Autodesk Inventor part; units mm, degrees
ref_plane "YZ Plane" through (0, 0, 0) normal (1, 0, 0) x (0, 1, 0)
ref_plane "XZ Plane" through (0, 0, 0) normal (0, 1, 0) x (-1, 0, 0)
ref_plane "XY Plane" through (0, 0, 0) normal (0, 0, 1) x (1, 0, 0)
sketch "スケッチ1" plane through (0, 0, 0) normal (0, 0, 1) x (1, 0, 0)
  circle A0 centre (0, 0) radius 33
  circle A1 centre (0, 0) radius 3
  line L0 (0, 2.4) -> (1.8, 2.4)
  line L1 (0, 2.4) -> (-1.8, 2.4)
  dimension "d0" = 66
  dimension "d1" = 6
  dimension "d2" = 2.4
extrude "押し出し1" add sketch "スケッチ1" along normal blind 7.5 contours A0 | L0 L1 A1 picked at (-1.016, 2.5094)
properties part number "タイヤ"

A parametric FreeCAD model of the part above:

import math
import FreeCAD as App
import Part
import Sketcher

doc = App.newDocument("Part")
body = doc.addObject("PartDesign::Body", "Body")

sketch1 = doc.addObject("Sketcher::SketchObject", "Sketch")
body.addObject(sketch1)
sketch1.AttachmentSupport = (doc.XY_Plane, [""])
sketch1.MapMode = "FlatFace"
sketch1.addGeometry([
    Part.Circle(App.Vector(0, 0, 0), App.Vector(0, 0, 1), 33),
    Part.ArcOfCircle(Part.Circle(App.Vector(0, 0, 0), App.Vector(0, 0, 1), 3), math.radians(127), math.radians(413)),
    Part.LineSegment(App.Vector(-1.8, 2.4, 0), App.Vector(1.8, 2.4, 0)),
], False)
sketch1.addConstraint([
    Sketcher.Constraint("Coincident", 1, 1, 2, 1),
    Sketcher.Constraint("Coincident", 2, 2, 1, 2),
    Sketcher.Constraint("Horizontal", 2),
    Sketcher.Constraint("Coincident", 0, 3, -1, 1),
    Sketcher.Constraint("Coincident", 1, 3, -1, 1),
    Sketcher.Constraint("Diameter", 0, 66.0),
    Sketcher.Constraint("Radius", 1, 3.0),
    Sketcher.Constraint("DistanceY", -1, 1, 1, 1, 2.4),
])
pad1 = doc.addObject("PartDesign::Pad", "Pad")
body.addObject(pad1)
pad1.Profile = sketch1
pad1.Length = 7.5

doc.recompute()
